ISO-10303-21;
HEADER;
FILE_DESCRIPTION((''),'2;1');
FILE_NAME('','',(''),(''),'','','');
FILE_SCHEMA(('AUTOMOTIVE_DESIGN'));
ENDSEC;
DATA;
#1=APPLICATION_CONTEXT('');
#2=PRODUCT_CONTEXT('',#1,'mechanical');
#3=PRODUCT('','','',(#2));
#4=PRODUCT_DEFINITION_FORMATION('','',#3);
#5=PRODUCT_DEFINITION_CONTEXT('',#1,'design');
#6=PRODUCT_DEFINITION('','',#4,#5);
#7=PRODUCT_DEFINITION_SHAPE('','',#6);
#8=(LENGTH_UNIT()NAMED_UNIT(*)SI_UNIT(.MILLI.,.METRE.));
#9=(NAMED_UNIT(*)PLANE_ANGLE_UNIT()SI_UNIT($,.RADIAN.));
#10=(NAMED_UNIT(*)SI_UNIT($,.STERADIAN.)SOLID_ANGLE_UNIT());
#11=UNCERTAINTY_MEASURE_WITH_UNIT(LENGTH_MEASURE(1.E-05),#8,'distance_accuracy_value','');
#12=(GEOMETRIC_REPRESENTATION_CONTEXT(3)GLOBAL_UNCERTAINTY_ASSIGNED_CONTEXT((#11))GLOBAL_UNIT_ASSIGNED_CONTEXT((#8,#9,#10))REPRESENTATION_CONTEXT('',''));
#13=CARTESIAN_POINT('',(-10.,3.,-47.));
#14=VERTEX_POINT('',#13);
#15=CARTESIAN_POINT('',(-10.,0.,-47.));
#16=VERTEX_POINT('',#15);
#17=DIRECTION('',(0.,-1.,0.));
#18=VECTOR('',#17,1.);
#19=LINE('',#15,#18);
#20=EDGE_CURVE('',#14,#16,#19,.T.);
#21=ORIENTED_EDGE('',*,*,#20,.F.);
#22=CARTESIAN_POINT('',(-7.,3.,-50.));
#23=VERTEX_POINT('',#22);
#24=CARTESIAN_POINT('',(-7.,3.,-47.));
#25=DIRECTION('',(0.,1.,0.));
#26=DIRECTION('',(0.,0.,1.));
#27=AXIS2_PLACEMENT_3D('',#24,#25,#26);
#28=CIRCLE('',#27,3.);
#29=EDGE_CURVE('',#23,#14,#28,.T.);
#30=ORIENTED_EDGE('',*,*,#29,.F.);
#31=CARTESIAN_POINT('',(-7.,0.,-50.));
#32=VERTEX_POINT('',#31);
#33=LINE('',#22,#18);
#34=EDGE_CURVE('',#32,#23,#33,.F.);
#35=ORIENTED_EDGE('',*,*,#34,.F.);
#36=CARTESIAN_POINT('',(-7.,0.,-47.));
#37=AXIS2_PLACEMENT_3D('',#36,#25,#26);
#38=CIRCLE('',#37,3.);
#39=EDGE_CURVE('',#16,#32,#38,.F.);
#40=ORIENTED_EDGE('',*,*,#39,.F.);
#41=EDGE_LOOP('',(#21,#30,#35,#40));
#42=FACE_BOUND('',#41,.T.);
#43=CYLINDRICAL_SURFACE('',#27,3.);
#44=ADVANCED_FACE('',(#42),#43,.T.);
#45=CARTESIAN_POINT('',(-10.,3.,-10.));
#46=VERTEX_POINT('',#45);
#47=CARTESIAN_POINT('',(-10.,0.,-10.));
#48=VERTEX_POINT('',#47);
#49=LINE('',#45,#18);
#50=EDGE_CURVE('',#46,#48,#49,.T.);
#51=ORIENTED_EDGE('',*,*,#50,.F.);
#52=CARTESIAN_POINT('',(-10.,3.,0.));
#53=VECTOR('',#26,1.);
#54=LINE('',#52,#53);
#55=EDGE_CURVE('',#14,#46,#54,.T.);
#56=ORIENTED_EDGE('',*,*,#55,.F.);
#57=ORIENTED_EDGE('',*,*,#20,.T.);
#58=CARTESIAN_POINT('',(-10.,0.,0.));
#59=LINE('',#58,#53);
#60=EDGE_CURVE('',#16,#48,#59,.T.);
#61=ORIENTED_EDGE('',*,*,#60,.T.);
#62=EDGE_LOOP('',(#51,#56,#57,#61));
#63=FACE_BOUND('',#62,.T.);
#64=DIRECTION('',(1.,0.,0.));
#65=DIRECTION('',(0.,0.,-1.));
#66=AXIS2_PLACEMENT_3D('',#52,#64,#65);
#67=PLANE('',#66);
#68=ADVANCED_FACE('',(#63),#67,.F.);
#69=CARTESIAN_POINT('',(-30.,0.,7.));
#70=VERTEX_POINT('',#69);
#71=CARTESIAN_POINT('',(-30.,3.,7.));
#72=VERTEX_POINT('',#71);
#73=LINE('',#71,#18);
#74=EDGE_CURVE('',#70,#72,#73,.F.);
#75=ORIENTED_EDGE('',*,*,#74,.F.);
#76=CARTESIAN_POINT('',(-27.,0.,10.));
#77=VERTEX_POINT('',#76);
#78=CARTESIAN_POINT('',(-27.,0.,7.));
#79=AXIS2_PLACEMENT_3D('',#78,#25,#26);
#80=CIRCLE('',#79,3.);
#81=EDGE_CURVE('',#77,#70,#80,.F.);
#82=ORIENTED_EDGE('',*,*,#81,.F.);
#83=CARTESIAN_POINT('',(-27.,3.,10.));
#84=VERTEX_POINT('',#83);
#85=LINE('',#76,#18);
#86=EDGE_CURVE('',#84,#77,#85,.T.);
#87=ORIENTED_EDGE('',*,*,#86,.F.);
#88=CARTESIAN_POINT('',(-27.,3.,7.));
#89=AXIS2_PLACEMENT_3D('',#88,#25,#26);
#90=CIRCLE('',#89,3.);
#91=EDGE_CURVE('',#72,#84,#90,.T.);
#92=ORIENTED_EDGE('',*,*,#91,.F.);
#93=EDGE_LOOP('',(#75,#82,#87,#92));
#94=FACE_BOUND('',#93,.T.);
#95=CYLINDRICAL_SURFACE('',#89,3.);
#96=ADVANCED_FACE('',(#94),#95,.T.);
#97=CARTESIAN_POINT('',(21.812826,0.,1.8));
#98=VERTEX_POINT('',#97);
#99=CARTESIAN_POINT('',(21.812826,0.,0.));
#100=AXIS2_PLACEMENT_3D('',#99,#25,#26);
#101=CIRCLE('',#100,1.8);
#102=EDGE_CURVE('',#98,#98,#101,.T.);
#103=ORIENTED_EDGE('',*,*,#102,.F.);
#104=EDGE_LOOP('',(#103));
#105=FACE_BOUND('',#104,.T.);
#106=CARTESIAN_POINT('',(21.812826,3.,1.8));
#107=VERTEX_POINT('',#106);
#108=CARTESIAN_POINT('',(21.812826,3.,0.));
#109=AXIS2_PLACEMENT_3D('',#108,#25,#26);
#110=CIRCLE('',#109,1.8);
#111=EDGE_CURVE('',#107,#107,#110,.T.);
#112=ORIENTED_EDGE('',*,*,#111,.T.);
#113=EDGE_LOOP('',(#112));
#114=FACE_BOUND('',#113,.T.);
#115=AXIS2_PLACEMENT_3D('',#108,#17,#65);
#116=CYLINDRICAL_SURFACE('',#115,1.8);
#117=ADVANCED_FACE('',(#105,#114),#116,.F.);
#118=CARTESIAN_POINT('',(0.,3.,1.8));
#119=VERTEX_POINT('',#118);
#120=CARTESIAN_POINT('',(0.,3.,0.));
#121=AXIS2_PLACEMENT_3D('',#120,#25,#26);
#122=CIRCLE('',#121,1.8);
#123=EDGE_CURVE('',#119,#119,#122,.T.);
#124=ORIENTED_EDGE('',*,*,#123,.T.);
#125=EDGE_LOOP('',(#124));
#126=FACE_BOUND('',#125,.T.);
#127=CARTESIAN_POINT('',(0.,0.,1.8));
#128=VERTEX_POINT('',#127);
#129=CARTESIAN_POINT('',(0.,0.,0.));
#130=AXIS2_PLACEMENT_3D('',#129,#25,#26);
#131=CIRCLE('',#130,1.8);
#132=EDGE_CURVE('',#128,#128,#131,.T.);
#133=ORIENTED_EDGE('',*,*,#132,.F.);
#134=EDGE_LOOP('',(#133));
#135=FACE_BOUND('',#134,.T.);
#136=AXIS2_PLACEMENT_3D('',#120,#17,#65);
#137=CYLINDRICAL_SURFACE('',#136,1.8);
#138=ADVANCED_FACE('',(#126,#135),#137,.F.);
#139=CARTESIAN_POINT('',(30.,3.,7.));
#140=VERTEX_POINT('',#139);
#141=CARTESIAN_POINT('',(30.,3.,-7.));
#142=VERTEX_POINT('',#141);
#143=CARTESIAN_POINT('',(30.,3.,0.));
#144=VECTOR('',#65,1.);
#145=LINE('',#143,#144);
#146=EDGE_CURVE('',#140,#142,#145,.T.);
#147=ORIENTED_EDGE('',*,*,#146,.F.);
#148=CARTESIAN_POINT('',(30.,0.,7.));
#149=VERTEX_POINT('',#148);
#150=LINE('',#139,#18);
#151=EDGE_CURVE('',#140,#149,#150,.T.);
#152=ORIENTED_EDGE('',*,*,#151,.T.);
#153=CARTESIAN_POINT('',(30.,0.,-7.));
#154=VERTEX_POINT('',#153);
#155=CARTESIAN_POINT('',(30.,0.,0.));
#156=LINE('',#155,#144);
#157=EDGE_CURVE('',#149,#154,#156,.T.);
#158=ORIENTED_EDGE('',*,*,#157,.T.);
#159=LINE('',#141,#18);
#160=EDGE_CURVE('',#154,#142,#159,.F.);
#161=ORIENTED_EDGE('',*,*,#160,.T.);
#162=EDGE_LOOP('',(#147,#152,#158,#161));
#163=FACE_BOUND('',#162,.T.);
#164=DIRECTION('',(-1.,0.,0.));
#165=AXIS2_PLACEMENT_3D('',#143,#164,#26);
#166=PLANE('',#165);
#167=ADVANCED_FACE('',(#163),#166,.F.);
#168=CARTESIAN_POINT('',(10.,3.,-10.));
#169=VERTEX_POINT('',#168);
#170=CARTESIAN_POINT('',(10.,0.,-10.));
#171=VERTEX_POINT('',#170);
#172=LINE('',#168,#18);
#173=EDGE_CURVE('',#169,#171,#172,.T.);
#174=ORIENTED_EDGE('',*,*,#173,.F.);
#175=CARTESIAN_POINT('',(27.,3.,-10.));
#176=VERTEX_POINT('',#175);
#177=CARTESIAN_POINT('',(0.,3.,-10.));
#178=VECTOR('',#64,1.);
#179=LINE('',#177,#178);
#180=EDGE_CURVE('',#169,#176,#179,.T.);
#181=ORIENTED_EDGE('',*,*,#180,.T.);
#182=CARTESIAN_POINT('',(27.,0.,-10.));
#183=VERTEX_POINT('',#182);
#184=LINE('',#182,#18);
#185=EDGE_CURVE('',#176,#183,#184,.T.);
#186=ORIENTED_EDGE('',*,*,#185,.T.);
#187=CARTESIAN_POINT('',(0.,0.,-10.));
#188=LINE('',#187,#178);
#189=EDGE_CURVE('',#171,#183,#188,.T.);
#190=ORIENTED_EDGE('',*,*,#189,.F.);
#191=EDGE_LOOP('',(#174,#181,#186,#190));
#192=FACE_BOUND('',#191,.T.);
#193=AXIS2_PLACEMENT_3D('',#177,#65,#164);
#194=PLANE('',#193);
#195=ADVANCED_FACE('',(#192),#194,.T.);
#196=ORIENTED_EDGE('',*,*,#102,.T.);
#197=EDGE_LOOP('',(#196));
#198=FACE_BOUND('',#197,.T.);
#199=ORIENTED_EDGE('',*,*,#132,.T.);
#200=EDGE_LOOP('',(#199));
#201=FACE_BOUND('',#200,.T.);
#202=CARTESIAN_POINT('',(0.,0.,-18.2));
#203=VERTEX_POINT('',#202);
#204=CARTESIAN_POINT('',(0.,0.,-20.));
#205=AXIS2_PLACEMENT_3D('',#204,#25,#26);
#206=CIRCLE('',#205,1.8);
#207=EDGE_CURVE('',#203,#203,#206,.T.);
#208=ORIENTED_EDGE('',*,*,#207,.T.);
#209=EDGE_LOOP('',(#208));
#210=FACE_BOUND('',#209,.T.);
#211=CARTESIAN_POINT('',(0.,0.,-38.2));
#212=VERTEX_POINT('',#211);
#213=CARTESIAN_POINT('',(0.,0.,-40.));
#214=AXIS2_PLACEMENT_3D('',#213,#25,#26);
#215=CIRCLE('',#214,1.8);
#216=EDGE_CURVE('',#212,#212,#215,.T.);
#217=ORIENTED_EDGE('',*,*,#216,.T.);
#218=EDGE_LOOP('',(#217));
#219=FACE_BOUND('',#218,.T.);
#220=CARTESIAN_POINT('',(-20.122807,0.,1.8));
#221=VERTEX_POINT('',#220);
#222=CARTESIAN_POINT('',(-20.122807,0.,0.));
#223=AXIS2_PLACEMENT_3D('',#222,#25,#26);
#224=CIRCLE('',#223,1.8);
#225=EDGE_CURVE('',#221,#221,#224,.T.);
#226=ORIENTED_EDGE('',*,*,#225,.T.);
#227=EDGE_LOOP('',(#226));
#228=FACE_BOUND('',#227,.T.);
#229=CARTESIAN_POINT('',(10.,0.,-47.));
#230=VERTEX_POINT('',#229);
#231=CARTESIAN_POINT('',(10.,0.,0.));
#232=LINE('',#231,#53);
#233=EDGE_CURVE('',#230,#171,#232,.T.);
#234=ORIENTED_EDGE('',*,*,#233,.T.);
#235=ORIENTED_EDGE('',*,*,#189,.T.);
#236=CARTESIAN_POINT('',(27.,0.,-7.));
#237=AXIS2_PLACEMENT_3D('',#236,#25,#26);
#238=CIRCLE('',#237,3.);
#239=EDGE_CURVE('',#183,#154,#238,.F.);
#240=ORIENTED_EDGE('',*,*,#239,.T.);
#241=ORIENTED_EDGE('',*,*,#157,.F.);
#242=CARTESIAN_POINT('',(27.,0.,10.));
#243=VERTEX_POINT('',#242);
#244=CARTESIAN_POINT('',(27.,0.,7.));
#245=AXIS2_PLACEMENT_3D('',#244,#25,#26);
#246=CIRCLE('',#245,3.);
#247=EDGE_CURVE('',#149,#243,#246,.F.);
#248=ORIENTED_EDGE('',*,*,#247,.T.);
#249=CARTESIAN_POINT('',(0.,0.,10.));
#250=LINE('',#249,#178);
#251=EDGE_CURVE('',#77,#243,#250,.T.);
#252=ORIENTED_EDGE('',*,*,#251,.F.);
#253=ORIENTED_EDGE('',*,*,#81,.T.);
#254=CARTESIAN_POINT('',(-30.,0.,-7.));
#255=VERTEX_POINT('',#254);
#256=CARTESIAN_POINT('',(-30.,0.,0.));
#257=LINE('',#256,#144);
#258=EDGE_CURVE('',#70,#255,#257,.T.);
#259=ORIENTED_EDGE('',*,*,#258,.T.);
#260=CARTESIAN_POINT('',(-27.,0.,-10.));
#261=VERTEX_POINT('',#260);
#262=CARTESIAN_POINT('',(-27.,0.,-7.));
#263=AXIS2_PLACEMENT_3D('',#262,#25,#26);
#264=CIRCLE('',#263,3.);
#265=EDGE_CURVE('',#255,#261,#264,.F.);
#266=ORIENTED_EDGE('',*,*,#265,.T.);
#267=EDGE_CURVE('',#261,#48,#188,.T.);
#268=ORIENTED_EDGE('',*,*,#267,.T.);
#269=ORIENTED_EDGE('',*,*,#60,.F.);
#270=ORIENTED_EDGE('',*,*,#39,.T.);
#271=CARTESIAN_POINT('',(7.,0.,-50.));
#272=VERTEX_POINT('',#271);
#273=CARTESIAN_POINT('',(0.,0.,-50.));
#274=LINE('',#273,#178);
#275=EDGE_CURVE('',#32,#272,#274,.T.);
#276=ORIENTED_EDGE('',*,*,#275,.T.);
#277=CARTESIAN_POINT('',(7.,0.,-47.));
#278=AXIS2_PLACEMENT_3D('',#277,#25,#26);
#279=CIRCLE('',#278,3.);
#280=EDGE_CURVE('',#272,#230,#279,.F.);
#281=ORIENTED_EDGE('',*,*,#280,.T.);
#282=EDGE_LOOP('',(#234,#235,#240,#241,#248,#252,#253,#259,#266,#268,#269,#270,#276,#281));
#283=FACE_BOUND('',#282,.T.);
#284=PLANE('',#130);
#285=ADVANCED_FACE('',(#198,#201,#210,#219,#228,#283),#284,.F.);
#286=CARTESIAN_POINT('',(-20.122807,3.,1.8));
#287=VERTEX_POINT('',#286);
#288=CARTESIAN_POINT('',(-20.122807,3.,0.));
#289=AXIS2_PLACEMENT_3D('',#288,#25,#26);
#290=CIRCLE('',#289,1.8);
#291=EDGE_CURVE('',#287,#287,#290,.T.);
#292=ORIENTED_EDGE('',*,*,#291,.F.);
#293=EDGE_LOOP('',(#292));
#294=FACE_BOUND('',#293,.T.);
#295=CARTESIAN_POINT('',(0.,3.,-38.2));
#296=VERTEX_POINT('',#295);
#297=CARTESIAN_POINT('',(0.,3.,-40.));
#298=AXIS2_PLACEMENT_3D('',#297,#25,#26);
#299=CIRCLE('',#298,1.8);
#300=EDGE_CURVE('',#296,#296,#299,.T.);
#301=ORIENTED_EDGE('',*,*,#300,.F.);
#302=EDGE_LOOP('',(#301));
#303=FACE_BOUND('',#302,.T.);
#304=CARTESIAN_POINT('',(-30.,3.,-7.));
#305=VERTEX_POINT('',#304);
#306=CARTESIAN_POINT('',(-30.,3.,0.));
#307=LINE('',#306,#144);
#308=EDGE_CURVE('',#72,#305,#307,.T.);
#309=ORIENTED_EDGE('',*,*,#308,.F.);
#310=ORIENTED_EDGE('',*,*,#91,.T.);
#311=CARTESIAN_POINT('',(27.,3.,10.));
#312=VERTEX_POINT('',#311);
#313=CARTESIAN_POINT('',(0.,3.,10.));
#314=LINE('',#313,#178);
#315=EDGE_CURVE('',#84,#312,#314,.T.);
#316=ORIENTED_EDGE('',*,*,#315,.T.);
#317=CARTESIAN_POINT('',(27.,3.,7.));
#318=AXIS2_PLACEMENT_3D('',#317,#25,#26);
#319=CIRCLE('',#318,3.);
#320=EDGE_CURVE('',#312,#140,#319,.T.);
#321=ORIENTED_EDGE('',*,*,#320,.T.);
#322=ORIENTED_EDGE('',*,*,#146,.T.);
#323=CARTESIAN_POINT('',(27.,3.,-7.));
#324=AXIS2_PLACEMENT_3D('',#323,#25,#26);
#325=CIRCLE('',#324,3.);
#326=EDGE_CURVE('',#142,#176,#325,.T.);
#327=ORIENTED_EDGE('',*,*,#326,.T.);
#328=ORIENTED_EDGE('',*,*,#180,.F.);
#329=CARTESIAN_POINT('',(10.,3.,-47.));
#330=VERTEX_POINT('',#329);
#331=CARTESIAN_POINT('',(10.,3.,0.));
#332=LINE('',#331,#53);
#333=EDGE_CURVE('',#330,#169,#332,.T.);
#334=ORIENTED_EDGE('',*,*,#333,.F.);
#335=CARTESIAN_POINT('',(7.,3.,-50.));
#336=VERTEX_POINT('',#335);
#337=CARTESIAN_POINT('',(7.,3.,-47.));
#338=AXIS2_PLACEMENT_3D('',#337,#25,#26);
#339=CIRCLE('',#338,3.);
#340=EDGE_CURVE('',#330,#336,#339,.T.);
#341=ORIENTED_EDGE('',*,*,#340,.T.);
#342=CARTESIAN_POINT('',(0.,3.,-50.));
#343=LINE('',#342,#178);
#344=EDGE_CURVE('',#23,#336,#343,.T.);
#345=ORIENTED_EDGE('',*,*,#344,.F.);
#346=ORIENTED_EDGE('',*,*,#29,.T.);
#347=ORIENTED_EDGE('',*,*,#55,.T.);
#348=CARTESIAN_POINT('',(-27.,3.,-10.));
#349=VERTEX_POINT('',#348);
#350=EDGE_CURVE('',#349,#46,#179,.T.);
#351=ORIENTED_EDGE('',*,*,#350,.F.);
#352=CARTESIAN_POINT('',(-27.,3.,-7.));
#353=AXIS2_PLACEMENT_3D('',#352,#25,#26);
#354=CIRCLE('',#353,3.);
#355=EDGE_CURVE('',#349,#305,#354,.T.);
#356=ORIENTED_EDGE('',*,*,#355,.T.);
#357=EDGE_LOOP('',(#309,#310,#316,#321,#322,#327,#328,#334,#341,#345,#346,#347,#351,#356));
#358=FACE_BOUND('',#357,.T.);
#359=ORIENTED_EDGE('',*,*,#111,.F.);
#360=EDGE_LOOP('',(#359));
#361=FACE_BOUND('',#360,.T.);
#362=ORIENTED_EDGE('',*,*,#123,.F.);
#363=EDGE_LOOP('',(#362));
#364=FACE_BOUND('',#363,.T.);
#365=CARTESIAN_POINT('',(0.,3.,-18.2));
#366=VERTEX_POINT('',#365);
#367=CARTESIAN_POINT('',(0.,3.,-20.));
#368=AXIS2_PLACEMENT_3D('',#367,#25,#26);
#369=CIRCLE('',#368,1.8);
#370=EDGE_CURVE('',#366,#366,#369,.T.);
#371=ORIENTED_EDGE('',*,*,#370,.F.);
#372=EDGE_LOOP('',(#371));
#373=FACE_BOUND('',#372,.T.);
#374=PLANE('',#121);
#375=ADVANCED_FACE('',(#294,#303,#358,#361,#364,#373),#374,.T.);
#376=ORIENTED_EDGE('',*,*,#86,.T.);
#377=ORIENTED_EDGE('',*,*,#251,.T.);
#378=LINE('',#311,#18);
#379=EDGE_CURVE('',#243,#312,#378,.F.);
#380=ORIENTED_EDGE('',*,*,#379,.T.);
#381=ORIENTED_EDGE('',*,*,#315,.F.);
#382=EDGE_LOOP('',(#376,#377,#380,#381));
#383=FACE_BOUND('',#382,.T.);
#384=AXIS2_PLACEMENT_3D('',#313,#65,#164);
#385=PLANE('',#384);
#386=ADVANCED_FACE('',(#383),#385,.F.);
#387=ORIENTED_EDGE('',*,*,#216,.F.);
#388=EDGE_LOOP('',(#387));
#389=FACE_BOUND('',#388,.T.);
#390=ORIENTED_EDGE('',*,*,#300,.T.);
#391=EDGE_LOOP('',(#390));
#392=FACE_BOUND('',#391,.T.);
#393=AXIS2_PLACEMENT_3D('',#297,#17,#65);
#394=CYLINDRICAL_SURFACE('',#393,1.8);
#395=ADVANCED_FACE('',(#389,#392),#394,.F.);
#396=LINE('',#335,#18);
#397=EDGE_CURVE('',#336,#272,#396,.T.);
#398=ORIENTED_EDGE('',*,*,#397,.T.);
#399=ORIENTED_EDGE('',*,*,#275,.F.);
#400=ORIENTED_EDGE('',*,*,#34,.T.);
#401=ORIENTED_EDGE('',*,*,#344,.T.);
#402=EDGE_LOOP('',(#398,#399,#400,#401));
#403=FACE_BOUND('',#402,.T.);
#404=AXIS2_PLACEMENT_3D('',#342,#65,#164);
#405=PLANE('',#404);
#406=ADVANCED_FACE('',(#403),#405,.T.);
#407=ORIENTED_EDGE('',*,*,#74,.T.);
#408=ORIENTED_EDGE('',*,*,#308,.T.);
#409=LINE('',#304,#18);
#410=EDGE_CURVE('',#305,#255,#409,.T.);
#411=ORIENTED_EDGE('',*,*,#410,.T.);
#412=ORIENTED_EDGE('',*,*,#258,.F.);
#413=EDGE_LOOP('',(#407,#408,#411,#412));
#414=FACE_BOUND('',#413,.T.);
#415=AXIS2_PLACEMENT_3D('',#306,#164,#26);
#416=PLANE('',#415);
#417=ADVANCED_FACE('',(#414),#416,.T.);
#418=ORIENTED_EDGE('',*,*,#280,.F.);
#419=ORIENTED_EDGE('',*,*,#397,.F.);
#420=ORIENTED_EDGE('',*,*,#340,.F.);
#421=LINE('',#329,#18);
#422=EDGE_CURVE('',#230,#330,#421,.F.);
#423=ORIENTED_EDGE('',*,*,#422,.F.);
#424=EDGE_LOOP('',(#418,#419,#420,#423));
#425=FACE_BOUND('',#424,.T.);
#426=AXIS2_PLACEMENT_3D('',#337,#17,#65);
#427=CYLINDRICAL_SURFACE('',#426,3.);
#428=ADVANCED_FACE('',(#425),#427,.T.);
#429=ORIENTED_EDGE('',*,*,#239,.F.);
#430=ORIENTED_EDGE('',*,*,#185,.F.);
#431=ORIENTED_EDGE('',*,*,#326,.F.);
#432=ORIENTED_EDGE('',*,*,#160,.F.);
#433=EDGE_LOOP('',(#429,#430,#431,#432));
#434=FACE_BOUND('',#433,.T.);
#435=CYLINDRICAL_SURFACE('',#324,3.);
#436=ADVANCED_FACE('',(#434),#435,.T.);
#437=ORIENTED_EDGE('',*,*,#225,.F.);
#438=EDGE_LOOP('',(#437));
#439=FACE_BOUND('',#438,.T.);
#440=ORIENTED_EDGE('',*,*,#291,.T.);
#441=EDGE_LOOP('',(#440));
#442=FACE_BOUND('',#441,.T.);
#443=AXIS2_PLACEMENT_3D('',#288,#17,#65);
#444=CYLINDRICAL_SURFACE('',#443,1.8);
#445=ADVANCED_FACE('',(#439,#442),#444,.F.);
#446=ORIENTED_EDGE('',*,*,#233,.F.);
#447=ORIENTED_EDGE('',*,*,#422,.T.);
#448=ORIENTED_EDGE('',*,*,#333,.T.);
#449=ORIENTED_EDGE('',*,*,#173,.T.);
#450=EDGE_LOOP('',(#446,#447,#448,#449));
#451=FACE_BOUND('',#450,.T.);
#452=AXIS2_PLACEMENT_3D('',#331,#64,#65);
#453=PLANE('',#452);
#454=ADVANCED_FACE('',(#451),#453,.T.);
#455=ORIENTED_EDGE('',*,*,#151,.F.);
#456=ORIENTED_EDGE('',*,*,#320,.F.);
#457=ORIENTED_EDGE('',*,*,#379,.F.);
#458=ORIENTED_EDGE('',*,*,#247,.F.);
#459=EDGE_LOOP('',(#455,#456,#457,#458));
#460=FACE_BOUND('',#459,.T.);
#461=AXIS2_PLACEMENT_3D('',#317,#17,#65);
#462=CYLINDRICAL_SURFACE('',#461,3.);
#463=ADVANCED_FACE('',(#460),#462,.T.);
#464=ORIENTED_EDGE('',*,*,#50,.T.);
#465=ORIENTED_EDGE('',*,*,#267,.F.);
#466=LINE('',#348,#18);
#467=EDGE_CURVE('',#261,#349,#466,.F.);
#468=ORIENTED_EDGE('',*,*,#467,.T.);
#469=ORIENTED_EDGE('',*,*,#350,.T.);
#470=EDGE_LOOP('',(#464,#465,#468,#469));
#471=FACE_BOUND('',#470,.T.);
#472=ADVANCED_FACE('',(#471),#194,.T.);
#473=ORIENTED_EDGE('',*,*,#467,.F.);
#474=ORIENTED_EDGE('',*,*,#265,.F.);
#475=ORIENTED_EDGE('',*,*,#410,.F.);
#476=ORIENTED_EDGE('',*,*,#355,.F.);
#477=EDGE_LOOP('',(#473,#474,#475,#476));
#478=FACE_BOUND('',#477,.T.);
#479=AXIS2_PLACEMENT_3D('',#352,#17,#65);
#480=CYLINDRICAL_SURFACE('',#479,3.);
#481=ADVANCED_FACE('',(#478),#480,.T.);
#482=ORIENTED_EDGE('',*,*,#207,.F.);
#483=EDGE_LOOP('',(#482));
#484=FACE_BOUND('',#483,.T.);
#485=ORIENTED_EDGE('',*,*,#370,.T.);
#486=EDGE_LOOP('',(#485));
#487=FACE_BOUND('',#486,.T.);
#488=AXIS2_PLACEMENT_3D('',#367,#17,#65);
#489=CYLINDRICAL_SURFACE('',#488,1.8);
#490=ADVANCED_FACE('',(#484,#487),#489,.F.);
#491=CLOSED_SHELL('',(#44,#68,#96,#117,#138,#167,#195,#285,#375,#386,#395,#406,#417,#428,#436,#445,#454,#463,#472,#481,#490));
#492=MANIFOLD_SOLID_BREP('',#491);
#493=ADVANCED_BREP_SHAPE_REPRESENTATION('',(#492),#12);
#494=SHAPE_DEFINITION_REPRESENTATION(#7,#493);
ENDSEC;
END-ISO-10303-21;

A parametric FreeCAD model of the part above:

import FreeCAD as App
import Part
import Sketcher
from FreeCAD import Vector
Q = App.Units.Quantity


def edges_at(feature, points):
    """Names of the edges that pass closest to the given points."""
    edges = feature.Shape.Edges
    near = lambda p: min(range(len(edges)), key=lambda i: edges[i].distToShape(Part.Vertex(*p))[0])
    return sorted({f"Edge{near(p) + 1}" for p in points})

doc = App.newDocument("Part")
body = doc.addObject("PartDesign::Body", "Body")

# Sketch on XZ plane
sketch1 = body.newObject("Sketcher::SketchObject", "Sketch")
sketch1.AttachmentSupport = (doc.getObject("XZ_Plane"), [""])
sketch1.MapMode = "FlatFace"
sketch1.addGeometry([
    Part.LineSegment(Vector(-10, -50, 0), Vector(-10, -10, 0)),  # 0
    Part.LineSegment(Vector(-10, -10, 0), Vector(-30, -10, 0)),  # 1
    Part.LineSegment(Vector(-30, -10, 0), Vector(-30, 10, 0)),  # 2
    Part.LineSegment(Vector(-30, 10, 0), Vector(30, 10, 0)),  # 3
    Part.LineSegment(Vector(30, 10, 0), Vector(30, -10, 0)),  # 4
    Part.LineSegment(Vector(30, -10, 0), Vector(10, -10, 0)),  # 5
    Part.LineSegment(Vector(10, -10, 0), Vector(10, -50, 0)),  # 6
    Part.LineSegment(Vector(10, -50, 0), Vector(-10, -50, 0)),  # 7
    Part.Circle(Vector(0, -20, 0), Vector(0, 0, 1), 1.8),  # 8
    Part.Circle(Vector(0, -40, 0), Vector(0, 0, 1), 1.8),  # 9
    Part.Circle(Vector(21.8, 0, 0), Vector(0, 0, 1), 1.8),  # 10
    Part.Circle(Vector(-20.1, 0, 0), Vector(0, 0, 1), 1.8),  # 11
    Part.Circle(Vector(0, 0, 0), Vector(0, 0, 1), 1.8),  # 12
], False)
sketch1.addConstraint([
    Sketcher.Constraint("Coincident", 0, 2, 1, 1),
    Sketcher.Constraint("Coincident", 1, 2, 2, 1),
    Sketcher.Constraint("Coincident", 2, 2, 3, 1),
    Sketcher.Constraint("Coincident", 3, 2, 4, 1),
    Sketcher.Constraint("Coincident", 4, 2, 5, 1),
    Sketcher.Constraint("Coincident", 5, 2, 6, 1),
    Sketcher.Constraint("Coincident", 6, 2, 7, 1),
    Sketcher.Constraint("Coincident", 7, 2, 0, 1),
    Sketcher.Constraint("Vertical", 0),
    Sketcher.Constraint("Horizontal", 1),
    Sketcher.Constraint("Vertical", 2),
    Sketcher.Constraint("Horizontal", 3),
    Sketcher.Constraint("Vertical", 4),
    Sketcher.Constraint("Horizontal", 5),
    Sketcher.Constraint("Vertical", 6),
    Sketcher.Constraint("Horizontal", 7),
    Sketcher.Constraint("Coincident", 12, 3, -1, 1),
    Sketcher.Constraint("Equal", 8, 9),
    Sketcher.Constraint("Equal", 9, 10),
    Sketcher.Constraint("Equal", 10, 11),
    Sketcher.Constraint("Equal", 11, 12),
    Sketcher.Constraint("Symmetric", 1, 2, 3, 2, -1, 1),
    Sketcher.Constraint("Symmetric", 0, 2, 5, 2, -2),
    Sketcher.Constraint("PointOnObject", 8, 3, -2),
    Sketcher.Constraint("PointOnObject", 9, 3, -2),
    Sketcher.Constraint("PointOnObject", 10, 3, -1),
    Sketcher.Constraint("PointOnObject", 11, 3, -1),
    Sketcher.Constraint("Equal", 5, 7),
    Sketcher.Constraint("Equal", 7, 2),
    Sketcher.Constraint("Diameter", 8, Q("3.6 mm")),
    Sketcher.Constraint("DistanceX", 1, 2, 1, 1, Q("20 mm")),
    Sketcher.Constraint("DistanceY", 0, 1, 0, 2, Q("40 mm")),
    Sketcher.Constraint("DistanceY", 8, 3, -1, 1, Q("20 mm")),
    Sketcher.Constraint("DistanceY", 9, 3, -1, 1, Q("40 mm")),
    Sketcher.Constraint("DistanceX", -1, 1, 10, 3, Q("21.812826 mm")),
    Sketcher.Constraint("DistanceX", 11, 3, -1, 1, Q("20.122807 mm")),
])
pad1 = body.newObject("PartDesign::Pad", "Pad")
pad1.Profile = sketch1
pad1.Length = 3
pad1.Reversed = True
doc.recompute()

fillet = body.newObject("PartDesign::Fillet", "Fillet")
fillet.Base = (pad1, edges_at(pad1, [
    (30, 1.5, -10),
    (30, 1.5, 10),
    (-30, 1.5, 10),
    (-30, 1.5, -10),
    (-10, 1.5, -50),
    (10, 1.5, -50),
]))
fillet.Radius = 3

doc.recompute()
